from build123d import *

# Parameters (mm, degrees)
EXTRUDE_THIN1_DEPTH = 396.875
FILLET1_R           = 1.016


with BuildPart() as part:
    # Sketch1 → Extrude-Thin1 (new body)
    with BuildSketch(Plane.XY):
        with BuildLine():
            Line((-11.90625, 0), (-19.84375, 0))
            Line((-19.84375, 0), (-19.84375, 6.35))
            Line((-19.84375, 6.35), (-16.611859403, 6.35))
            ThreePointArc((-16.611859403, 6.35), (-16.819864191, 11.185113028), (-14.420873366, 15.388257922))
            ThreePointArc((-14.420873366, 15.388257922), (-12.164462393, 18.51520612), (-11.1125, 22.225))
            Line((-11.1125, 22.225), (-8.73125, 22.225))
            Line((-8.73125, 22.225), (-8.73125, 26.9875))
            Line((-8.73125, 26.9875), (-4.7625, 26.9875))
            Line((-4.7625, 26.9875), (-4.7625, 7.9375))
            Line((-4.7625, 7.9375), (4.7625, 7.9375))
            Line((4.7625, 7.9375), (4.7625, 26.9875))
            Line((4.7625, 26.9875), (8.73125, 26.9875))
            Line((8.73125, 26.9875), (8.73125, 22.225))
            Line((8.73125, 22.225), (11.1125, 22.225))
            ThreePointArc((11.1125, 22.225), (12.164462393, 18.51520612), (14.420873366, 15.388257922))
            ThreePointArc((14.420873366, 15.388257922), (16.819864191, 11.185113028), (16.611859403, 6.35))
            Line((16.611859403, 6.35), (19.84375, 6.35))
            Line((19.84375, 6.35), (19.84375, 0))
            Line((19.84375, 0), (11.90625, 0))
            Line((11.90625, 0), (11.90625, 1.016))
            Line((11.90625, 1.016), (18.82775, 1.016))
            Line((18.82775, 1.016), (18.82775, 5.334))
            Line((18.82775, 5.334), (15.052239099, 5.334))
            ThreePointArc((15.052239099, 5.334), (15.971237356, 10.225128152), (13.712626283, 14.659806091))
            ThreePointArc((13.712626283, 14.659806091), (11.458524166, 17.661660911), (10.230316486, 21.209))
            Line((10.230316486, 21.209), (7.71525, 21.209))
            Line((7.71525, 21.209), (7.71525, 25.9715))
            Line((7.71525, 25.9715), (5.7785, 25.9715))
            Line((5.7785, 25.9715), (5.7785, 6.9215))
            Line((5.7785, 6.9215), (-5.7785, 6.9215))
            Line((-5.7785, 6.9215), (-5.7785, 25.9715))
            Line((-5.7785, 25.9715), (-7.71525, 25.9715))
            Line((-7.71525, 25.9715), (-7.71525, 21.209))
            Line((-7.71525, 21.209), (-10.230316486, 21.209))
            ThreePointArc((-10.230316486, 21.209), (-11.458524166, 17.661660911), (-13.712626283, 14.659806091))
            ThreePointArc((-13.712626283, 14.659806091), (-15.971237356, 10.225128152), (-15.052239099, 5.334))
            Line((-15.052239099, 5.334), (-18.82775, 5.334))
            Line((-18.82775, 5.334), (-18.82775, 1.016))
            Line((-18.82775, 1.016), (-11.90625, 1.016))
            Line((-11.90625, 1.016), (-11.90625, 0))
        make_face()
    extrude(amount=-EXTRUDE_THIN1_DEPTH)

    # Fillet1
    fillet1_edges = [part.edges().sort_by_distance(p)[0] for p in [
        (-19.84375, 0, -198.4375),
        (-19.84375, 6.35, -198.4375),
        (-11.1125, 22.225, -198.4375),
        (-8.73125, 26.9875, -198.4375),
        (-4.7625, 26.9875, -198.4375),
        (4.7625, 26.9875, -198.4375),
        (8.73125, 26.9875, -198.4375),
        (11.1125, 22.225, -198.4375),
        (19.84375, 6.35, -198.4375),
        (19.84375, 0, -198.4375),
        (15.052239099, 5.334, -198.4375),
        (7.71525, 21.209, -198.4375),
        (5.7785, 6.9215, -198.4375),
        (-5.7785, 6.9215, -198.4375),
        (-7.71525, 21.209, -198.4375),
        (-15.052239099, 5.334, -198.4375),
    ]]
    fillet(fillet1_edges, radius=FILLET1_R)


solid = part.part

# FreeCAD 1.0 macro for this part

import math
import FreeCAD as App
import Part
import Sketcher
Q = App.Units.Quantity


def edges_at(feature, points):
    """Names of the edges that pass closest to the given points."""
    edges = feature.Shape.Edges
    near = lambda p: min(range(len(edges)), key=lambda i: edges[i].distToShape(Part.Vertex(*p))[0])
    return sorted({f"Edge{near(p) + 1}" for p in points})

doc = App.newDocument("Part")
body = doc.addObject("PartDesign::Body", "Body")

sketch1 = doc.addObject("Sketcher::SketchObject", "Sketch")
body.addObject(sketch1)
sketch1.AttachmentSupport = (doc.XY_Plane, [""])
sketch1.MapMode = "FlatFace"
sketch1.addGeometry([
    Part.LineSegment(App.Vector(-19.8, 0, 0), App.Vector(-11.9, 0, 0)),
    Part.LineSegment(App.Vector(-11.9, 0, 0), App.Vector(-11.9, 1, 0)),
    Part.LineSegment(App.Vector(-11.9, 1, 0), App.Vector(-18.8, 1, 0)),
    Part.LineSegment(App.Vector(-18.8, 1, 0), App.Vector(-18.8, 5.3, 0)),
    Part.LineSegment(App.Vector(-18.8, 5.3, 0), App.Vector(-15.1, 5.3, 0)),
    Part.ArcOfCircle(Part.Circle(App.Vector(-8.3, 9.1, 0), App.Vector(0, 0, 1), 7.7), math.radians(134), math.radians(209)),
    Part.ArcOfCircle(Part.Circle(App.Vector(-22.2, 23.4, 0), App.Vector(0, 0, 1), 12.1), math.radians(-46), math.radians(-10)),
    Part.LineSegment(App.Vector(-10.2, 21.2, 0), App.Vector(-7.7, 21.2, 0)),
    Part.LineSegment(App.Vector(-7.7, 21.2, 0), App.Vector(-7.7, 26, 0)),
    Part.LineSegment(App.Vector(-7.7, 26, 0), App.Vector(-5.8, 26, 0)),
    Part.LineSegment(App.Vector(-5.8, 26, 0), App.Vector(-5.8, 6.9, 0)),
    Part.LineSegment(App.Vector(-5.8, 6.9, 0), App.Vector(5.8, 6.9, 0)),
    Part.LineSegment(App.Vector(5.8, 6.9, 0), App.Vector(5.8, 26, 0)),
    Part.LineSegment(App.Vector(5.8, 26, 0), App.Vector(7.7, 26, 0)),
    Part.LineSegment(App.Vector(7.7, 26, 0), App.Vector(7.7, 21.2, 0)),
    Part.LineSegment(App.Vector(7.7, 21.2, 0), App.Vector(10.2, 21.2, 0)),
    Part.ArcOfCircle(Part.Circle(App.Vector(22.2, 23.4, 0), App.Vector(0, 0, 1), 12.1), math.radians(-170), math.radians(-134)),
    Part.ArcOfCircle(Part.Circle(App.Vector(8.3, 9.1, 0), App.Vector(0, 0, 1), 7.7), math.radians(-29), math.radians(46)),
    Part.LineSegment(App.Vector(15.1, 5.3, 0), App.Vector(18.8, 5.3, 0)),
    Part.LineSegment(App.Vector(18.8, 5.3, 0), App.Vector(18.8, 1, 0)),
    Part.LineSegment(App.Vector(18.8, 1, 0), App.Vector(11.9, 1, 0)),
    Part.LineSegment(App.Vector(11.9, 1, 0), App.Vector(11.9, 0, 0)),
    Part.LineSegment(App.Vector(11.9, 0, 0), App.Vector(19.8, 0, 0)),
    Part.LineSegment(App.Vector(19.8, 0, 0), App.Vector(19.8, 6.3, 0)),
    Part.LineSegment(App.Vector(19.8, 6.3, 0), App.Vector(16.6, 6.3, 0)),
    Part.ArcOfCircle(Part.Circle(App.Vector(8.3, 9.1, 0), App.Vector(0, 0, 1), 8.7), math.radians(-19), math.radians(46)),
    Part.ArcOfCircle(Part.Circle(App.Vector(22.2, 23.4, 0), App.Vector(0, 0, 1), 11.1), math.radians(-174), math.radians(-134)),
    Part.LineSegment(App.Vector(11.1, 22.2, 0), App.Vector(8.7, 22.2, 0)),
    Part.LineSegment(App.Vector(8.7, 22.2, 0), App.Vector(8.7, 27, 0)),
    Part.LineSegment(App.Vector(8.7, 27, 0), App.Vector(4.8, 27, 0)),
    Part.LineSegment(App.Vector(4.8, 27, 0), App.Vector(4.8, 7.9, 0)),
    Part.LineSegment(App.Vector(4.8, 7.9, 0), App.Vector(-4.8, 7.9, 0)),
    Part.LineSegment(App.Vector(-4.8, 7.9, 0), App.Vector(-4.8, 27, 0)),
    Part.LineSegment(App.Vector(-4.8, 27, 0), App.Vector(-8.7, 27, 0)),
    Part.LineSegment(App.Vector(-8.7, 27, 0), App.Vector(-8.7, 22.2, 0)),
    Part.LineSegment(App.Vector(-8.7, 22.2, 0), App.Vector(-11.1, 22.2, 0)),
    Part.ArcOfCircle(Part.Circle(App.Vector(-22.2, 23.4, 0), App.Vector(0, 0, 1), 11.1), math.radians(-46), math.radians(-6)),
    Part.ArcOfCircle(Part.Circle(App.Vector(-8.3, 9.1, 0), App.Vector(0, 0, 1), 8.7), math.radians(134), math.radians(199)),
    Part.LineSegment(App.Vector(-16.6, 6.3, 0), App.Vector(-19.8, 6.3, 0)),
    Part.LineSegment(App.Vector(-19.8, 6.3, 0), App.Vector(-19.8, 0, 0)),
], False)
sketch1.addConstraint([
    Sketcher.Constraint("Coincident", 0, 2, 1, 1),
    Sketcher.Constraint("Coincident", 1, 2, 2, 1),
    Sketcher.Constraint("Coincident", 2, 2, 3, 1),
    Sketcher.Constraint("Coincident", 3, 2, 4, 1),
    Sketcher.Constraint("Coincident", 4, 2, 5, 2),
    Sketcher.Constraint("Tangent", 5, 1, 6, 1),
    Sketcher.Constraint("Coincident", 6, 2, 7, 1),
    Sketcher.Constraint("Coincident", 7, 2, 8, 1),
    Sketcher.Constraint("Coincident", 8, 2, 9, 1),
    Sketcher.Constraint("Coincident", 9, 2, 10, 1),
    Sketcher.Constraint("Coincident", 10, 2, 11, 1),
    Sketcher.Constraint("Coincident", 11, 2, 12, 1),
    Sketcher.Constraint("Coincident", 12, 2, 13, 1),
    Sketcher.Constraint("Coincident", 13, 2, 14, 1),
    Sketcher.Constraint("Coincident", 14, 2, 15, 1),
    Sketcher.Constraint("Coincident", 15, 2, 16, 1),
    Sketcher.Constraint("Tangent", 16, 2, 17, 2),
    Sketcher.Constraint("Coincident", 17, 1, 18, 1),
    Sketcher.Constraint("Coincident", 18, 2, 19, 1),
    Sketcher.Constraint("Coincident", 19, 2, 20, 1),
    Sketcher.Constraint("Coincident", 20, 2, 21, 1),
    Sketcher.Constraint("Coincident", 21, 2, 22, 1),
    Sketcher.Constraint("Coincident", 22, 2, 23, 1),
    Sketcher.Constraint("Coincident", 23, 2, 24, 1),
    Sketcher.Constraint("Coincident", 24, 2, 25, 1),
    Sketcher.Constraint("Tangent", 25, 2, 26, 2),
    Sketcher.Constraint("Coincident", 26, 1, 27, 1),
    Sketcher.Constraint("Coincident", 27, 2, 28, 1),
    Sketcher.Constraint("Coincident", 28, 2, 29, 1),
    Sketcher.Constraint("Coincident", 29, 2, 30, 1),
    Sketcher.Constraint("Coincident", 30, 2, 31, 1),
    Sketcher.Constraint("Coincident", 31, 2, 32, 1),
    Sketcher.Constraint("Coincident", 32, 2, 33, 1),
    Sketcher.Constraint("Coincident", 33, 2, 34, 1),
    Sketcher.Constraint("Coincident", 34, 2, 35, 1),
    Sketcher.Constraint("Coincident", 35, 2, 36, 2),
    Sketcher.Constraint("Tangent", 36, 1, 37, 1),
    Sketcher.Constraint("Coincident", 37, 2, 38, 1),
    Sketcher.Constraint("Coincident", 38, 2, 39, 1),
    Sketcher.Constraint("Coincident", 39, 2, 0, 1),
    Sketcher.Constraint("Horizontal", 0),
    Sketcher.Constraint("Vertical", 1),
    Sketcher.Constraint("Horizontal", 2),
    Sketcher.Constraint("Vertical", 3),
    Sketcher.Constraint("Horizontal", 4),
    Sketcher.Constraint("Horizontal", 7),
    Sketcher.Constraint("Vertical", 8),
    Sketcher.Constraint("Horizontal", 9),
    Sketcher.Constraint("Vertical", 10),
    Sketcher.Constraint("Horizontal", 11),
    Sketcher.Constraint("Vertical", 12),
    Sketcher.Constraint("Horizontal", 13),
    Sketcher.Constraint("Vertical", 14),
    Sketcher.Constraint("Horizontal", 15),
    Sketcher.Constraint("Horizontal", 18),
    Sketcher.Constraint("Vertical", 19),
    Sketcher.Constraint("Horizontal", 20),
    Sketcher.Constraint("Vertical", 21),
    Sketcher.Constraint("Horizontal", 22),
    Sketcher.Constraint("Vertical", 23),
    Sketcher.Constraint("Horizontal", 24),
    Sketcher.Constraint("Horizontal", 27),
    Sketcher.Constraint("Vertical", 28),
    Sketcher.Constraint("Horizontal", 29),
    Sketcher.Constraint("Vertical", 30),
    Sketcher.Constraint("Horizontal", 31),
    Sketcher.Constraint("Vertical", 32),
    Sketcher.Constraint("Horizontal", 33),
    Sketcher.Constraint("Vertical", 34),
    Sketcher.Constraint("Horizontal", 35),
    Sketcher.Constraint("Horizontal", 38),
    Sketcher.Constraint("Vertical", 39),
    Sketcher.Constraint("Coincident", 25, 3, 17, 3),
    Sketcher.Constraint("Coincident", 26, 3, 16, 3),
    Sketcher.Constraint("Coincident", 36, 3, 6, 3),
    Sketcher.Constraint("Coincident", 37, 3, 5, 3),
    Sketcher.Constraint("Equal", 6, 16),
    Sketcher.Constraint("Equal", 5, 17),
    Sketcher.Constraint("Equal", 26, 36),
    Sketcher.Constraint("Symmetric", 0, 2, 21, 2, -1, 1),
    Sketcher.Constraint("Symmetric", 6, 3, 16, 3, -2),
    Sketcher.Constraint("Symmetric", 9, 2, 12, 2, -2),
    Sketcher.Constraint("Symmetric", 7, 2, 14, 2, -2),
    Sketcher.Constraint("Symmetric", 4, 2, 17, 1, -2),
    Sketcher.Constraint("Symmetric", 2, 2, 19, 2, -2),
    Sketcher.Constraint("Symmetric", 29, 2, 32, 2, -2),
    Sketcher.Constraint("Symmetric", 27, 2, 34, 2, -2),
    Sketcher.Constraint("Symmetric", 23, 2, 38, 2, -2),
    Sketcher.Constraint("PointOnObject", 0, 2, -1),
    Sketcher.Constraint("Equal", 14, 28),
    Sketcher.Constraint("Equal", 12, 30),
    Sketcher.Constraint("Radius", 25, Q("0.34375 in")),
    Sketcher.Constraint("Radius", 26, Q("0.4375 in")),
    Sketcher.Constraint("DistanceY", 1, 1, 1, 2, Q("0.04 in")),
    Sketcher.Constraint("DistanceY", 3, 1, 3, 2, Q("0.17 in")),
    Sketcher.Constraint("DistanceY", 10, 2, 10, 1, Q("0.75 in")),
    Sketcher.Constraint("DistanceY", 23, 1, 23, 2, Q("0.25 in")),
    Sketcher.Constraint("Radius", 6, Q("0.4775 in")),
    Sketcher.Constraint("DistanceX", 0, 1, 0, 2, Q("0.3125 in")),
    Sketcher.Constraint("DistanceX", 11, 1, 11, 2, Q("0.455 in")),
    Sketcher.Constraint("DistanceX", 27, 2, 27, 1, Q("0.09375 in")),
    Sketcher.Constraint("DistanceX", 29, 2, 29, 1, Q("0.15625 in")),
    Sketcher.Constraint("DistanceX", 31, 2, 31, 1, Q("0.375 in")),
    Sketcher.Constraint("DistanceY", 8, 1, 8, 2, Q("0.1875 in")),
    Sketcher.Constraint("DistanceX", 19, 2, 22, 2, Q("0.04 in")),
    Sketcher.Constraint("DistanceY", 15, 2, 26, 1, Q("0.04 in")),
    Sketcher.Constraint("DistanceX", 14, 2, 27, 2, Q("0.04 in")),
    Sketcher.Constraint("DistanceX", 5, 3, -1, 1, Q("0.328125 in")),
    Sketcher.Constraint("DistanceY", -1, 1, 5, 3, Q("0.359375 in")),
    Sketcher.Constraint("DistanceX", 0, 2, -1, 1, Q("0.46875 in")),
    Sketcher.Constraint("DistanceY", -1, 1, 6, 2, Q("0.835 in")),
])
pad1 = doc.addObject("PartDesign::Pad", "Pad")
body.addObject(pad1)
pad1.Profile = sketch1
pad1.Length = Q("15.625 in")
pad1.Reversed = True
doc.recompute()

fillet = doc.addObject("PartDesign::Fillet", "Fillet")
body.addObject(fillet)
fillet.Base = (pad1, edges_at(pad1, [
    (-19.844, 0, -198.438),
    (-19.844, 6.35, -198.438),
    (-11.113, 22.225, -198.438),
    (-8.731, 26.988, -198.438),
    (-4.763, 26.988, -198.438),
    (4.763, 26.988, -198.438),
    (8.731, 26.988, -198.438),
    (11.113, 22.225, -198.438),
    (19.844, 6.35, -198.438),
    (19.844, 0, -198.438),
    (15.052, 5.334, -198.438),
    (7.715, 21.209, -198.438),
    (5.779, 6.921, -198.438),
    (-5.779, 6.921, -198.438),
    (-7.715, 21.209, -198.438),
    (-15.052, 5.334, -198.438),
]))
fillet.Radius = Q("0.04 in")

doc.recompute()
